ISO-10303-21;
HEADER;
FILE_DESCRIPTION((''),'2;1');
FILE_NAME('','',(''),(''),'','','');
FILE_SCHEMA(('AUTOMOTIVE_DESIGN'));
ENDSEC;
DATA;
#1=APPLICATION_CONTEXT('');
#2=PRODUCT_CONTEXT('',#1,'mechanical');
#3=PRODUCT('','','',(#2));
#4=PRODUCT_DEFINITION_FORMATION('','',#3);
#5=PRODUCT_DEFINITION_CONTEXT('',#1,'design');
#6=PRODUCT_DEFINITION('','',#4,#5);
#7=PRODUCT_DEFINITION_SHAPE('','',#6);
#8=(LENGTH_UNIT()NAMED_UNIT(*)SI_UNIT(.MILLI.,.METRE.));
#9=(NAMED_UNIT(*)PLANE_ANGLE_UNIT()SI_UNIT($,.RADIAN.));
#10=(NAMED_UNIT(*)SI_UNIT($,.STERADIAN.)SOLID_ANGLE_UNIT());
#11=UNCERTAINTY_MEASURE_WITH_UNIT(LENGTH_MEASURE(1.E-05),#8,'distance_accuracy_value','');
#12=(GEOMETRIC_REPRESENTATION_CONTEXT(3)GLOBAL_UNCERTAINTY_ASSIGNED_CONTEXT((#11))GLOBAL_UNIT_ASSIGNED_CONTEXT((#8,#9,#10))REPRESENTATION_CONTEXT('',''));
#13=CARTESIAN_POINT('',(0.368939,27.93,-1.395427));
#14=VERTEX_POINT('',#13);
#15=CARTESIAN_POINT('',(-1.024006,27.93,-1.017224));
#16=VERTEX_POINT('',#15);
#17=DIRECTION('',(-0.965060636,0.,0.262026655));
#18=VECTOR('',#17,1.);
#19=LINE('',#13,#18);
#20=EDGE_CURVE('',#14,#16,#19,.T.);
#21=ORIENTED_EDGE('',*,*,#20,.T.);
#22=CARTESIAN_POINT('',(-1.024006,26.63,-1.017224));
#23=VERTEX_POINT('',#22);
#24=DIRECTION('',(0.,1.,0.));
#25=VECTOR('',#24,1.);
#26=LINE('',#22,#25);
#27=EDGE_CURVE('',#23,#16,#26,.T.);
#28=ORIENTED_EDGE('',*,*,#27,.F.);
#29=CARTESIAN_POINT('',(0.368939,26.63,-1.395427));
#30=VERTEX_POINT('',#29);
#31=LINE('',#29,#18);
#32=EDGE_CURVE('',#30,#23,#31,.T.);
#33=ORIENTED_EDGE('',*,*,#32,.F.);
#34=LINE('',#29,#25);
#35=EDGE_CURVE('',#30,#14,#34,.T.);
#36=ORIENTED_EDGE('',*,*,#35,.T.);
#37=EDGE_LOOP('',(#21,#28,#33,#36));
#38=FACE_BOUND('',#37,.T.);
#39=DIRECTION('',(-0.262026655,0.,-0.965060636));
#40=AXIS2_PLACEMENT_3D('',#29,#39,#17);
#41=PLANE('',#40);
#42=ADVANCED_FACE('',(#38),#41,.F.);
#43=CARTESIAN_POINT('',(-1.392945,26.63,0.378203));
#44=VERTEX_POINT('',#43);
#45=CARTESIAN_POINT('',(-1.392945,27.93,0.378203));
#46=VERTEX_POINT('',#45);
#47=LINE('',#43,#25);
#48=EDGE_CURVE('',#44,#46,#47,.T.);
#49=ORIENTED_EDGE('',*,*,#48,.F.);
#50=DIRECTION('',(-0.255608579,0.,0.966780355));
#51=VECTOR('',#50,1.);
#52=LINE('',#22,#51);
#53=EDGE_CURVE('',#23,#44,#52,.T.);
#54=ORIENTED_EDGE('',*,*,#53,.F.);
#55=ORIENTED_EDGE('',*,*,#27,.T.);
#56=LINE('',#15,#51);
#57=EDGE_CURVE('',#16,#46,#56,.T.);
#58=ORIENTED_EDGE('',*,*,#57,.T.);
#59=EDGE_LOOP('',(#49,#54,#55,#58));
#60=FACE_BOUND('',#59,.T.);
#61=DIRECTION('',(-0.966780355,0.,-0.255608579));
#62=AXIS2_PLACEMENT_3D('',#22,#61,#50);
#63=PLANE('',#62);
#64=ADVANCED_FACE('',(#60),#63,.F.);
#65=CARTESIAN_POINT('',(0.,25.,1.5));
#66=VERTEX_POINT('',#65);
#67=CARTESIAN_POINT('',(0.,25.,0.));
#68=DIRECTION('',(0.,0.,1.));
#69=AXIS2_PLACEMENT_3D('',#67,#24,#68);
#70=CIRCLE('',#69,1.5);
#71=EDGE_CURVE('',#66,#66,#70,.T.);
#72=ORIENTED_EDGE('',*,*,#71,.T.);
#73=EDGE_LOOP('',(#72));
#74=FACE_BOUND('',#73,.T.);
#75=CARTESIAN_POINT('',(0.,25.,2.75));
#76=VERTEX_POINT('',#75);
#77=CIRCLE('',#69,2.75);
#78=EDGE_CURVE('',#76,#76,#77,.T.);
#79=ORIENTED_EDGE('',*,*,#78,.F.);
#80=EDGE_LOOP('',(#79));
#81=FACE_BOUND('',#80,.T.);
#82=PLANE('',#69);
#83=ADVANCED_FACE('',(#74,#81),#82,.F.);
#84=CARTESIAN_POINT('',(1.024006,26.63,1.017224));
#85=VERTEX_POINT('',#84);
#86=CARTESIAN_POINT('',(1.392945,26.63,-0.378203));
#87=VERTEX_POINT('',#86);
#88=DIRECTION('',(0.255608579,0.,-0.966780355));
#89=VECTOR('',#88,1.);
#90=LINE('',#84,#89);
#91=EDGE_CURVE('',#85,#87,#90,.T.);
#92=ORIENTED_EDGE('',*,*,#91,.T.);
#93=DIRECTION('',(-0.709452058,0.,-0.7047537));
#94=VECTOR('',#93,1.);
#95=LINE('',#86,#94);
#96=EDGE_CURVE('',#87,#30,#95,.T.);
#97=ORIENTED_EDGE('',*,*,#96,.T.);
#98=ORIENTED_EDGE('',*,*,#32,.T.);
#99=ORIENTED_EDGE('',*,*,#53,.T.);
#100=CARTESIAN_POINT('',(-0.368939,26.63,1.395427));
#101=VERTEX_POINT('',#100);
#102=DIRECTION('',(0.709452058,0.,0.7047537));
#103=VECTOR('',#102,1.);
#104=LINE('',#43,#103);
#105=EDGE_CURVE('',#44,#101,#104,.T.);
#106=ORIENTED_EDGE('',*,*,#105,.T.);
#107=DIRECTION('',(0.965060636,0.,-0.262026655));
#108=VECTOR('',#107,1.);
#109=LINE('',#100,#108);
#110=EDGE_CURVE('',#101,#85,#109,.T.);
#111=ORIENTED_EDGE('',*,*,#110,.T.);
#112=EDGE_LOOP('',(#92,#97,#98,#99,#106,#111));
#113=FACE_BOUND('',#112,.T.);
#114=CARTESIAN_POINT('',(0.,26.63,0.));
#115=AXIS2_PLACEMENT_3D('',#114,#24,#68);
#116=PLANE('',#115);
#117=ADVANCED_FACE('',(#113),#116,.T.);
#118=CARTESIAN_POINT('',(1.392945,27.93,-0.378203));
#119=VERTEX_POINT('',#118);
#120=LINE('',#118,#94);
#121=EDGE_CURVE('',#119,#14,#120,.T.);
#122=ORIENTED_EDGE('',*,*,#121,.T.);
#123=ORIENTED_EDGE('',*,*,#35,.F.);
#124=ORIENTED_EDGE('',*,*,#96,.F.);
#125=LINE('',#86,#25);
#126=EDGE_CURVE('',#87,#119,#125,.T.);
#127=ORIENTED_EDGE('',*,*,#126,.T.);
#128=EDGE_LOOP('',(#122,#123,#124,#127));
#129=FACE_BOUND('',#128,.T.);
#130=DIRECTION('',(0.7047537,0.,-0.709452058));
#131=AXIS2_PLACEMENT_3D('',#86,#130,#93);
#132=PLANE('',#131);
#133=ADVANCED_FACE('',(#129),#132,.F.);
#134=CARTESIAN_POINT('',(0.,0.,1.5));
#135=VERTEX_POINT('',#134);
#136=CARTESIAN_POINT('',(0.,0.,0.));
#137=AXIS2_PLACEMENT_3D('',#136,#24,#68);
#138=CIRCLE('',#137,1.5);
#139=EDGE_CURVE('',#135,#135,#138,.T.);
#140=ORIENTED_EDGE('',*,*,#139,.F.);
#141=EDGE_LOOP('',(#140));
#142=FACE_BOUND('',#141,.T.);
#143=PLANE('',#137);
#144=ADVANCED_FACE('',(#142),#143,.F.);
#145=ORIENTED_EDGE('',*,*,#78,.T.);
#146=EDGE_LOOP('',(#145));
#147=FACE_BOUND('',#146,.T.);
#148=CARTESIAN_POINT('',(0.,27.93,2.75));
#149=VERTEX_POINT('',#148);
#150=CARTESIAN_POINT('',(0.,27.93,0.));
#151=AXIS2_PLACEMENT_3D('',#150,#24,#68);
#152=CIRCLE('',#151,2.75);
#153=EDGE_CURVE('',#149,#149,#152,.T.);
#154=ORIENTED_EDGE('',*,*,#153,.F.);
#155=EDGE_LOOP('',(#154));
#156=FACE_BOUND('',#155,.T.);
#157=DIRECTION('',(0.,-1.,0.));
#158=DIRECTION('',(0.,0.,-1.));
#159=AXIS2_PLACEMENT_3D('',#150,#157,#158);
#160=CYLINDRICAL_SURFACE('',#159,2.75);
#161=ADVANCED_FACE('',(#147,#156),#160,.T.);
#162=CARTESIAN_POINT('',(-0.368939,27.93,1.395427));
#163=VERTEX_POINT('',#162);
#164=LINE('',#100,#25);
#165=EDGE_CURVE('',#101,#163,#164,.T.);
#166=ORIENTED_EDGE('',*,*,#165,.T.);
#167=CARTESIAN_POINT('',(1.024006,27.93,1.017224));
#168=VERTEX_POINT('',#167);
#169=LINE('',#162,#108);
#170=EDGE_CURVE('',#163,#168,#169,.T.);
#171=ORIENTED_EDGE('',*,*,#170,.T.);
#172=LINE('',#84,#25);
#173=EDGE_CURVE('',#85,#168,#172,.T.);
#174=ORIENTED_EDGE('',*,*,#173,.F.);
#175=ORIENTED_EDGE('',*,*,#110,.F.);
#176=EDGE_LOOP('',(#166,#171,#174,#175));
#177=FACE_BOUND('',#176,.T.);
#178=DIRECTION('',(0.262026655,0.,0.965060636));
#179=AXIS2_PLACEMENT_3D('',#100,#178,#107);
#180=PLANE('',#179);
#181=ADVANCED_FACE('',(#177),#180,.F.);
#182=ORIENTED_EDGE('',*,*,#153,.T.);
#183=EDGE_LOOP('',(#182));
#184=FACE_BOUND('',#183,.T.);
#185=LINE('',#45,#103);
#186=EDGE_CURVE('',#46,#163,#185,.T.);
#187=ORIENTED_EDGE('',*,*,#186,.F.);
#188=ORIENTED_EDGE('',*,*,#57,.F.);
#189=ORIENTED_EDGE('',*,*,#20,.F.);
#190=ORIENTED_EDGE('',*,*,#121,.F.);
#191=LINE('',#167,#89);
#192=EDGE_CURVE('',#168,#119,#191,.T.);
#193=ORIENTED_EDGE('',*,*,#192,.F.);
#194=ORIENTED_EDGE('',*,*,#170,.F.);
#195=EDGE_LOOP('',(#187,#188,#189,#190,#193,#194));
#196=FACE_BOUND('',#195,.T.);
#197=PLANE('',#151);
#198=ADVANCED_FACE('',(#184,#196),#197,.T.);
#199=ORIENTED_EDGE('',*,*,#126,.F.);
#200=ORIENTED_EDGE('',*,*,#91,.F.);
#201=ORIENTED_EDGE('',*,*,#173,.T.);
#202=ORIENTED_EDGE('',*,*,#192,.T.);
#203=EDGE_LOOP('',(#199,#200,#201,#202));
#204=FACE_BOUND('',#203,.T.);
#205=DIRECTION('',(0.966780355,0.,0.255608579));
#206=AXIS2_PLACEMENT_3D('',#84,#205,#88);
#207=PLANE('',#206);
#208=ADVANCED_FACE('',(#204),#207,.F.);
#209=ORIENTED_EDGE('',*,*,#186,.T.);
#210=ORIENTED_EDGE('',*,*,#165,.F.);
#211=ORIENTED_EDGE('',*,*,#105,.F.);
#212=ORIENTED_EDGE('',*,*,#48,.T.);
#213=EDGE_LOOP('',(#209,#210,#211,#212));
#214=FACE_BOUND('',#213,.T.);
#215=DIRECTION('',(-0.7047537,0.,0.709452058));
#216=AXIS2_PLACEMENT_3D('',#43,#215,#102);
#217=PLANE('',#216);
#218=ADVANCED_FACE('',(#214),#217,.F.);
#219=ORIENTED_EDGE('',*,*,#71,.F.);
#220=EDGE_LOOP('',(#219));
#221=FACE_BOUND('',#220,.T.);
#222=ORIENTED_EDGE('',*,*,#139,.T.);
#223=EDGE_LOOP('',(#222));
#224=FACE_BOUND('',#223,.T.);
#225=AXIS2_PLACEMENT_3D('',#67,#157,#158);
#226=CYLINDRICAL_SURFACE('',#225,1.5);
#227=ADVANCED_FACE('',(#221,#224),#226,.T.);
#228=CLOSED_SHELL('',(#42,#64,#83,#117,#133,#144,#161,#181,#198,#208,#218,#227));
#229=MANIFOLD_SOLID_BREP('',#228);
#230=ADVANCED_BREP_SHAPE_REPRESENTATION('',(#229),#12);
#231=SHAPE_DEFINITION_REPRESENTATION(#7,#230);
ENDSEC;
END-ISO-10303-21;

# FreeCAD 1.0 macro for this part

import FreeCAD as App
import Part
import Sketcher

V = App.Vector
Q = App.Units.Quantity


def add_polygon(sketch, points):
    """Adds a closed chain of lines whose ends are joined by coincident constraints."""
    first, n = sketch.GeometryCount, len(points)
    for a, b in zip(points, points[1:] + points[:1]):
        sketch.addGeometry(Part.LineSegment(App.Vector(*a, 0), App.Vector(*b, 0)), False)
    for i in range(n):
        sketch.addConstraint(Sketcher.Constraint("Coincident", first + i, 2, first + (i + 1) % n, 1))

doc = App.newDocument("Part")
body = doc.addObject("PartDesign::Body", "Body")

# Sketch on XZ plane
sketch1 = body.newObject("Sketcher::SketchObject", "Sketch")
sketch1.AttachmentSupport = (doc.getObject("XZ_Plane"), [""])
sketch1.MapMode = "FlatFace"
sketch1.addGeometry(Part.Circle(V(0, 0, 0), V(0, 0, 1), 1.5), False)
sketch1.addConstraint([
    Sketcher.Constraint("Coincident", 0, 3, -1, 1),
    Sketcher.Constraint("Diameter", 0, Q("3 mm")),
])
pad1 = body.newObject("PartDesign::Pad", "Pad")
pad1.Profile = sketch1
pad1.Length = 25
pad1.Reversed = True

# Sketch on XZ plane
sketch2 = body.newObject("Sketcher::SketchObject", "Sketch001")
sketch2.AttachmentSupport = (doc.getObject("XZ_Plane"), [""])
sketch2.MapMode = "FlatFace"
sketch2.AttachmentOffset = App.Placement(V(0, 0, -25), App.Rotation())
sketch2.addGeometry(Part.Circle(V(0, 0, 0), V(0, 0, 1), 2.75), False)
sketch2.addConstraint([
    Sketcher.Constraint("Coincident", 0, 3, -1, 1),
    Sketcher.Constraint("Diameter", 0, Q("5.5 mm")),
])
pad2 = body.newObject("PartDesign::Pad", "Pad001")
pad2.Profile = sketch2
pad2.Length = 2.93
pad2.Reversed = True

# Sketch on XZ plane
sketch3 = body.newObject("Sketcher::SketchObject", "Sketch002")
sketch3.AttachmentSupport = (doc.getObject("XZ_Plane"), [""])
sketch3.MapMode = "FlatFace"
sketch3.AttachmentOffset = App.Placement(V(0, 0, -27.93), App.Rotation())
add_polygon(sketch3, [(1.024006, 1.017224), (1.392945, -0.378203), (0.368939, -1.395427), (-1.024006, -1.017224), (-1.392945, 0.378203), (-0.368939, 1.395427)])  # lines 0-5
sketch3.addConstraint([
    Sketcher.Constraint("Symmetric", 0, 2, 3, 2, -1, 1),
    Sketcher.Constraint("Symmetric", 1, 2, 4, 2, -1, 1),
    Sketcher.Constraint("Symmetric", 2, 2, 5, 2, -1, 1),
    Sketcher.Constraint("Equal", 0, 1),
    Sketcher.Constraint("Equal", 1, 2),
    Sketcher.Constraint("DistanceX", -1, 1, 1, 2, Q("0.368939 mm")),
    Sketcher.Constraint("DistanceX", 2, 2, 0, 2, Q("2.416951 mm")),
    Sketcher.Constraint("DistanceY", 2, 2, 0, 2, Q("0.639021 mm")),
    Sketcher.Constraint("DistanceX", 3, 2, 2, 2, Q("0.368939 mm")),
])
pocket1 = body.newObject("PartDesign::Pocket", "Pocket")
pocket1.Profile = sketch3
pocket1.Length = 1.3
pocket1.Reversed = True

doc.recompute()
